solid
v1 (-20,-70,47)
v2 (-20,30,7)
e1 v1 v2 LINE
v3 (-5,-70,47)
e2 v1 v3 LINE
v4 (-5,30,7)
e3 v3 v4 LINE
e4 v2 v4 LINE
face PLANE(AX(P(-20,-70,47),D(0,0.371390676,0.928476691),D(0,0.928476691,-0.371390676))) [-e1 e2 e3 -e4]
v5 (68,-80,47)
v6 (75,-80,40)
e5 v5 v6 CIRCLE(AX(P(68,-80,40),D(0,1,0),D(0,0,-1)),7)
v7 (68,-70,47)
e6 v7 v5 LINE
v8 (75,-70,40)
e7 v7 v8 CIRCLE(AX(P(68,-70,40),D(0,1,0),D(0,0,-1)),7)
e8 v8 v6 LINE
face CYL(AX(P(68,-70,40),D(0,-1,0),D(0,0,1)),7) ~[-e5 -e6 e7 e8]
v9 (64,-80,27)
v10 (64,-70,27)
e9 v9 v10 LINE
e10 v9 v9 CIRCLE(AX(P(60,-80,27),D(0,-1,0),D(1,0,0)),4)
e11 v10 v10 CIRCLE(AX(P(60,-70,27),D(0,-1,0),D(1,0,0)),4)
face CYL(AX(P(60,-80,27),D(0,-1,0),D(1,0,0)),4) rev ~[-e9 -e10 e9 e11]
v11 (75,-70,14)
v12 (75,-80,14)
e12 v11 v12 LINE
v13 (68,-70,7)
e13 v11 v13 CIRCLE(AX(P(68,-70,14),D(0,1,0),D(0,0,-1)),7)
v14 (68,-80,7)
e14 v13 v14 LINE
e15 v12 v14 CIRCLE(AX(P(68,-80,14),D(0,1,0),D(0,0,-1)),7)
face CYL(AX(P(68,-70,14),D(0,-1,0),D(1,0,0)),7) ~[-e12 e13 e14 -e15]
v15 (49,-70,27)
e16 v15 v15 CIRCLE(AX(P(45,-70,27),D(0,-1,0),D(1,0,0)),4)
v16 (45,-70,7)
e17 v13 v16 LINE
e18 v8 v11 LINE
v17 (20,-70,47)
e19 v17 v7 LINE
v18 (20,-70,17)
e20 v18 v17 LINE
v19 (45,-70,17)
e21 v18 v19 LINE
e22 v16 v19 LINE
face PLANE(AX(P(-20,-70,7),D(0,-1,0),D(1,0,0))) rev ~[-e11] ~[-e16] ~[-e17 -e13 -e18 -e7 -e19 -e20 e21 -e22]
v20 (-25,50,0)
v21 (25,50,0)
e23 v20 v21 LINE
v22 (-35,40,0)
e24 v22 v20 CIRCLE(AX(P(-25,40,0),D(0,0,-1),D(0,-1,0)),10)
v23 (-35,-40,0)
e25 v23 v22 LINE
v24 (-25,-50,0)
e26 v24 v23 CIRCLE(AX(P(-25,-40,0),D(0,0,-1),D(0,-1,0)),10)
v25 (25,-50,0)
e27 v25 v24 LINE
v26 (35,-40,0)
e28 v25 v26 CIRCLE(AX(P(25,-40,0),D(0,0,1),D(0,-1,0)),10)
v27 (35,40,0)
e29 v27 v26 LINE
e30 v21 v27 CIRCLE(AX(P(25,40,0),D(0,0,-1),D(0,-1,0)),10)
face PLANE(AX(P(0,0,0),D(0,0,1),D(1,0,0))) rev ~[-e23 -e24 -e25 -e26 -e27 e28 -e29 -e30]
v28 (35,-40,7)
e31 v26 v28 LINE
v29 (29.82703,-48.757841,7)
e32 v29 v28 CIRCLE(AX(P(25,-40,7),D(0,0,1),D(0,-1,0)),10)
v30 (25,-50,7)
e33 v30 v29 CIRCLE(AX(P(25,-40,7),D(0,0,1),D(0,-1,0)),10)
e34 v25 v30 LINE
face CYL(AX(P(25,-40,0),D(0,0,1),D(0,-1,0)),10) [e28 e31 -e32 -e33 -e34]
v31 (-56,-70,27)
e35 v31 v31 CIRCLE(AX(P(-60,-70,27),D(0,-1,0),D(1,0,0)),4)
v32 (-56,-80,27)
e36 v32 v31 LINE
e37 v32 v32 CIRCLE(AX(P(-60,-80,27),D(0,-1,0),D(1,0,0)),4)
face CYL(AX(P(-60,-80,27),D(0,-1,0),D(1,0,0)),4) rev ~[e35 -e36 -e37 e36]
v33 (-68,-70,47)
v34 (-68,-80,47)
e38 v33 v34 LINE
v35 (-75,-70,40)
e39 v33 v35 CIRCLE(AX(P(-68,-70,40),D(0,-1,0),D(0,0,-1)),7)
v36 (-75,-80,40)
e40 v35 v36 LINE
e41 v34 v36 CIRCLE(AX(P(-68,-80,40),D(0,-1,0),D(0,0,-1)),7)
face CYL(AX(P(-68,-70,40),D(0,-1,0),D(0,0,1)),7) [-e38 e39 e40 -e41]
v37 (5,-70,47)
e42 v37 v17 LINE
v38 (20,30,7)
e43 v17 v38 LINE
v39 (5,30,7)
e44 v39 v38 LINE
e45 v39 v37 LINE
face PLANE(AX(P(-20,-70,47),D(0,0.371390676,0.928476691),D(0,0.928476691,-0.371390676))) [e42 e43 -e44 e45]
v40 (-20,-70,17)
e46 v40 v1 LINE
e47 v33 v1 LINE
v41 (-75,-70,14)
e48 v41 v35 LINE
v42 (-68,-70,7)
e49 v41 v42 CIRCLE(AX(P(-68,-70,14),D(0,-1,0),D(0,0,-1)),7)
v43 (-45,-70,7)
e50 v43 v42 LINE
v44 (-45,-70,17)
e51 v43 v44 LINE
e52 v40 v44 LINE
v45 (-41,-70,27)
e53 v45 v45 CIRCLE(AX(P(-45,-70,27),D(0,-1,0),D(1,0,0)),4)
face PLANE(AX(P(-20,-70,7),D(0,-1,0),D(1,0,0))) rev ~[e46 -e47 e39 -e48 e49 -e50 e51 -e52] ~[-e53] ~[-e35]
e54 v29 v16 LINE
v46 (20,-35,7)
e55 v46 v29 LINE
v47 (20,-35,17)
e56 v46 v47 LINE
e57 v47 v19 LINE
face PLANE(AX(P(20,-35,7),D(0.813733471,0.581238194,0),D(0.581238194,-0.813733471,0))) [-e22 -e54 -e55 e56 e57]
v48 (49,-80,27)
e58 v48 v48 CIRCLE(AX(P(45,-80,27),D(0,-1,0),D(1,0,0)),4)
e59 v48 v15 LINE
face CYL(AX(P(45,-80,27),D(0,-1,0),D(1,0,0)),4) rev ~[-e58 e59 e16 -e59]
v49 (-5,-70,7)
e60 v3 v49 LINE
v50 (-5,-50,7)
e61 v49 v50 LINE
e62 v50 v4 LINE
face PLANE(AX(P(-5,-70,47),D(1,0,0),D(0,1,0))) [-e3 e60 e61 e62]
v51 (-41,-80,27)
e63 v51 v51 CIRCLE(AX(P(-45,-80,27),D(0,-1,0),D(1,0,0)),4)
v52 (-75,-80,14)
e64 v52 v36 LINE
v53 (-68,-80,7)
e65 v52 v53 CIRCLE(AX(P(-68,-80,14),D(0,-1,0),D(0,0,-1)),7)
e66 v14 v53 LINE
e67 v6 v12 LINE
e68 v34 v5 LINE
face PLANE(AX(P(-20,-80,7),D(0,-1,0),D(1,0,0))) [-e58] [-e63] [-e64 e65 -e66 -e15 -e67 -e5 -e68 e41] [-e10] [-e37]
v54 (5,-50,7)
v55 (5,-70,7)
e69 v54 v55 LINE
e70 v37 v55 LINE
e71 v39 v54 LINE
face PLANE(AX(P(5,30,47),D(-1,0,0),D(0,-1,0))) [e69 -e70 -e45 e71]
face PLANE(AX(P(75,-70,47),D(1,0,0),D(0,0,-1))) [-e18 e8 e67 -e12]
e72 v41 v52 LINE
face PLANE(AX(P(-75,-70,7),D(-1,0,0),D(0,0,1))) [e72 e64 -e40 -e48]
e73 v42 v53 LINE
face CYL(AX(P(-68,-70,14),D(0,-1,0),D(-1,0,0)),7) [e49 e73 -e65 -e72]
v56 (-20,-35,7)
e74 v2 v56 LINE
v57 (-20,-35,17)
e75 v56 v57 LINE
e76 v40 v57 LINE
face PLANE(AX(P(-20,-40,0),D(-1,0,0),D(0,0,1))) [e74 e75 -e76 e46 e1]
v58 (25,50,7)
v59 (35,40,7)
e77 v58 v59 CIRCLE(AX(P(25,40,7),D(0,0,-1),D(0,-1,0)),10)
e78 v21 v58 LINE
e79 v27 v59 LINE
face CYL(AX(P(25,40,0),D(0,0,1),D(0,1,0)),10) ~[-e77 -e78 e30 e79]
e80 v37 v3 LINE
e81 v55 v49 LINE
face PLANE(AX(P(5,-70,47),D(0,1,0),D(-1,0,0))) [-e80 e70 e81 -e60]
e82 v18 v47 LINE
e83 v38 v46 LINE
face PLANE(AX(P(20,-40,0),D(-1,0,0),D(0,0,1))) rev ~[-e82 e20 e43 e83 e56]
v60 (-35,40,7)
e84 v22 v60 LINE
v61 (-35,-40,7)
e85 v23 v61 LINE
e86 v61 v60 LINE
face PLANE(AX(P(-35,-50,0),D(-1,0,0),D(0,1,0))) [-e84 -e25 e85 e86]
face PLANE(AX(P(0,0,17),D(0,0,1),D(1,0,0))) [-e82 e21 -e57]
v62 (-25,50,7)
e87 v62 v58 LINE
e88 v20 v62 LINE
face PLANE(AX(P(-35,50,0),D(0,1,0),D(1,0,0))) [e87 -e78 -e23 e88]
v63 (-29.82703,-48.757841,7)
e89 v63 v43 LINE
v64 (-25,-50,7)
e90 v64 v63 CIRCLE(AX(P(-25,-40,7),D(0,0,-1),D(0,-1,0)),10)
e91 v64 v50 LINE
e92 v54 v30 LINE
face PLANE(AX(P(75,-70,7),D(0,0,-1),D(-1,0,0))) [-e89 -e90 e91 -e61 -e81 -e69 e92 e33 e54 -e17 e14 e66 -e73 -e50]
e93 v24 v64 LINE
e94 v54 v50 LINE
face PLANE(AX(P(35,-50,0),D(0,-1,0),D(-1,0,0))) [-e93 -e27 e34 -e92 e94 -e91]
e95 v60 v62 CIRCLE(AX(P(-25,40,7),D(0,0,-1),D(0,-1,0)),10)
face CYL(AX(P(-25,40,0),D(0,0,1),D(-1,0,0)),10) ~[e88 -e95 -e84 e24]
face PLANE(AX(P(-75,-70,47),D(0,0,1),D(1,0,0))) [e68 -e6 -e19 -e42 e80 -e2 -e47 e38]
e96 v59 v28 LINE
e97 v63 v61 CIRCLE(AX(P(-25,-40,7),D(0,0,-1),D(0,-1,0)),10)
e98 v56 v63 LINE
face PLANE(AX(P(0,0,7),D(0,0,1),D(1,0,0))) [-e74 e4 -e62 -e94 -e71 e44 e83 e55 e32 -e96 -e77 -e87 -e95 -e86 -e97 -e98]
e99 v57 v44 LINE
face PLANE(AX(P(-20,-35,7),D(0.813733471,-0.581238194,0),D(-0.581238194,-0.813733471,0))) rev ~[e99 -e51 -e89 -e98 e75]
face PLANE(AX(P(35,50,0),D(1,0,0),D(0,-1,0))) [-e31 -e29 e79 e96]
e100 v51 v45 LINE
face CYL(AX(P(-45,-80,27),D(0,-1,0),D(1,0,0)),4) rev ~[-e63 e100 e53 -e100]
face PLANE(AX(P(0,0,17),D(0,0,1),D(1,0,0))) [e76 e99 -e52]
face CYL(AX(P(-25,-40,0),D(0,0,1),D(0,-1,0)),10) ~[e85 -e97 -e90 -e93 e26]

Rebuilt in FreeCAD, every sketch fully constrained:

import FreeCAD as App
import Part
import Sketcher

V = App.Vector


def edges_at(feature, points):
    """Names of the edges that pass closest to the given points."""
    edges = feature.Shape.Edges
    near = lambda p: min(range(len(edges)), key=lambda i: edges[i].distToShape(Part.Vertex(*p))[0])
    return sorted({f"Edge{near(p) + 1}" for p in points})

doc = App.newDocument("Part")
body = doc.addObject("PartDesign::Body", "Body")

# Sketch on XY plane
sketch1 = body.newObject("Sketcher::SketchObject", "Sketch")
sketch1.AttachmentSupport = (doc.getObject("XY_Plane"), [""])
sketch1.MapMode = "FlatFace"
sketch1.addGeometry([
    Part.LineSegment(V(-35, -50, 0), V(35, -50, 0)),
    Part.LineSegment(V(35, -50, 0), V(35, 50, 0)),
    Part.LineSegment(V(35, 50, 0), V(-35, 50, 0)),
    Part.LineSegment(V(-35, 50, 0), V(-35, -50, 0)),
], False)
sketch1.addConstraint([
    Sketcher.Constraint("Coincident", 0, 2, 1, 1),
    Sketcher.Constraint("Coincident", 1, 2, 2, 1),
    Sketcher.Constraint("Coincident", 2, 2, 3, 1),
    Sketcher.Constraint("Coincident", 3, 2, 0, 1),
    Sketcher.Constraint("Horizontal", 0),
    Sketcher.Constraint("Vertical", 1),
    Sketcher.Constraint("Horizontal", 2),
    Sketcher.Constraint("Vertical", 3),
    Sketcher.Constraint("Symmetric", 0, 2, 2, 2, -1, 1),
    Sketcher.Constraint("DistanceX", 0, 1, 0, 2, 70.0),
    Sketcher.Constraint("DistanceY", 1, 1, 1, 2, 100.0),
])
pad1 = body.newObject("PartDesign::Pad", "Pad")
pad1.Profile = sketch1
pad1.Length = 7
doc.recompute()

fillet = body.newObject("PartDesign::Fillet", "Fillet")
fillet.Base = (pad1, edges_at(pad1, [
    (35, 50, 3.5),
    (-35, 50, 3.5),
    (-35, -50, 3.5),
    (35, -50, 3.5),
]))
fillet.Radius = 10

# Sketch on YZ plane
sketch2 = body.newObject("Sketcher::SketchObject", "Sketch001")
sketch2.AttachmentSupport = (doc.getObject("YZ_Plane"), [""])
sketch2.MapMode = "FlatFace"
sketch2.AttachmentOffset = App.Placement(V(0, 0, -20), App.Rotation())
sketch2.addGeometry([
    Part.LineSegment(V(-70, 47, 0), V(30, 7, 0)),
    Part.LineSegment(V(30, 7, 0), V(-70, 7, 0)),
    Part.LineSegment(V(-70, 7, 0), V(-70, 47, 0)),
], False)
sketch2.addConstraint([
    Sketcher.Constraint("Coincident", 0, 2, 1, 1),
    Sketcher.Constraint("Coincident", 1, 2, 2, 1),
    Sketcher.Constraint("Coincident", 2, 2, 0, 1),
    Sketcher.Constraint("Horizontal", 1),
    Sketcher.Constraint("Vertical", 2),
    Sketcher.Constraint("DistanceX", 1, 2, 1, 1, 100.0),
    Sketcher.Constraint("DistanceY", 2, 1, 2, 2, 40.0),
    Sketcher.Constraint("DistanceX", -1, 1, 0, 2, 30.0),
    Sketcher.Constraint("DistanceY", -1, 1, 0, 2, 7.0),
])
pad2 = body.newObject("PartDesign::Pad", "Pad001")
pad2.Profile = sketch2
pad2.Length = 40

# Sketch on XZ plane
sketch3 = body.newObject("Sketcher::SketchObject", "Sketch002")
sketch3.AttachmentSupport = (doc.getObject("XZ_Plane"), [""])
sketch3.MapMode = "FlatFace"
sketch3.AttachmentOffset = App.Placement(V(0, 0, 70), App.Rotation())
sketch3.addGeometry([
    Part.LineSegment(V(75, 47, 0), V(-75, 47, 0)),
    Part.LineSegment(V(-75, 47, 0), V(-75, 7, 0)),
    Part.LineSegment(V(-75, 7, 0), V(75, 7, 0)),
    Part.LineSegment(V(75, 7, 0), V(75, 47, 0)),
], False)
sketch3.addConstraint([
    Sketcher.Constraint("Coincident", 0, 2, 1, 1),
    Sketcher.Constraint("Coincident", 1, 2, 2, 1),
    Sketcher.Constraint("Coincident", 2, 2, 3, 1),
    Sketcher.Constraint("Coincident", 3, 2, 0, 1),
    Sketcher.Constraint("Horizontal", 0),
    Sketcher.Constraint("Vertical", 1),
    Sketcher.Constraint("Horizontal", 2),
    Sketcher.Constraint("Vertical", 3),
    Sketcher.Constraint("DistanceX", 0, 2, 0, 1, 150.0),
    Sketcher.Constraint("DistanceY", 1, 2, 1, 1, 40.0),
    Sketcher.Constraint("DistanceX", 0, 2, -1, 1, 75.0),
    Sketcher.Constraint("DistanceY", -1, 1, 0, 2, 47.0),
])
pad3 = body.newObject("PartDesign::Pad", "Pad002")
pad3.Profile = sketch3
pad3.Length = 10
doc.recompute()

fillet2 = body.newObject("PartDesign::Fillet", "Fillet001")
fillet2.Base = (pad3, edges_at(pad3, [
    (-75, -75, 47),
    (75, -75, 47),
    (75, -75, 7),
    (-75, -75, 7),
]))
fillet2.Radius = 7

# Sketch on XZ plane
sketch4 = body.newObject("Sketcher::SketchObject", "Sketch003")
sketch4.AttachmentSupport = (doc.getObject("XZ_Plane"), [""])
sketch4.MapMode = "FlatFace"
sketch4.AttachmentOffset = App.Placement(V(0, 0, 80), App.Rotation())
sketch4.addGeometry([
    Part.Circle(V(60, 27, 0), V(0, 0, 1), 4),
    Part.Circle(V(-60, 27, 0), V(0, 0, 1), 4),
    Part.Circle(V(45, 27, 0), V(0, 0, 1), 4),
    Part.Circle(V(-45, 27, 0), V(0, 0, 1), 4),
], False)
sketch4.addConstraint([
    Sketcher.Constraint("Equal", 0, 1),
    Sketcher.Constraint("Equal", 1, 2),
    Sketcher.Constraint("Equal", 2, 3),
    Sketcher.Constraint("Symmetric", 0, 3, 1, 3, -2),
    Sketcher.Constraint("Symmetric", 2, 3, 3, 3, -2),
    Sketcher.Constraint("Horizontal", 1, 3, 2, 3),
    Sketcher.Constraint("Diameter", 0, 8.0),
    Sketcher.Constraint("DistanceX", 2, 3, 0, 3, 15.0),
    Sketcher.Constraint("DistanceX", -1, 1, 0, 3, 60.0),
    Sketcher.Constraint("DistanceY", -1, 1, 0, 3, 27.0),
])
pocket1 = body.newObject("PartDesign::Pocket", "Pocket")
pocket1.Profile = sketch4
pocket1.Length = 20

# Sketch on XY plane
sketch5 = body.newObject("Sketcher::SketchObject", "Sketch004")
sketch5.AttachmentSupport = (doc.getObject("XY_Plane"), [""])
sketch5.MapMode = "FlatFace"
sketch5.AttachmentOffset = App.Placement(V(0, 0, 47), App.Rotation())
sketch5.addGeometry([
    Part.LineSegment(V(-5, -70, 0), V(5, -70, 0)),
    Part.LineSegment(V(5, -70, 0), V(5, 30, 0)),
    Part.LineSegment(V(5, 30, 0), V(-5, 30, 0)),
    Part.LineSegment(V(-5, 30, 0), V(-5, -70, 0)),
], False)
sketch5.addConstraint([
    Sketcher.Constraint("Coincident", 0, 2, 1, 1),
    Sketcher.Constraint("Coincident", 1, 2, 2, 1),
    Sketcher.Constraint("Coincident", 2, 2, 3, 1),
    Sketcher.Constraint("Coincident", 3, 2, 0, 1),
    Sketcher.Constraint("Horizontal", 0),
    Sketcher.Constraint("Vertical", 1),
    Sketcher.Constraint("Horizontal", 2),
    Sketcher.Constraint("Vertical", 3),
    Sketcher.Constraint("DistanceX", 0, 1, 0, 2, 10.0),
    Sketcher.Constraint("DistanceY", 1, 1, 1, 2, 100.0),
    Sketcher.Constraint("DistanceX", -1, 1, 0, 2, 5.0),
    Sketcher.Constraint("DistanceY", 0, 2, -1, 1, 70.0),
])
pocket2 = body.newObject("PartDesign::Pocket", "Pocket001")
pocket2.Profile = sketch5
pocket2.Length = 40

# Sketch on XY plane
sketch6 = body.newObject("Sketcher::SketchObject", "Sketch005")
sketch6.AttachmentSupport = (doc.getObject("XY_Plane"), [""])
sketch6.MapMode = "FlatFace"
sketch6.AttachmentOffset = App.Placement(V(0, 0, 7), App.Rotation())
sketch6.addGeometry([
    Part.LineSegment(V(-45, -70, 0), V(-20, -70, 0)),  # 0
    Part.LineSegment(V(-20, -70, 0), V(-20, -35, 0)),  # 1
    Part.LineSegment(V(-20, -35, 0), V(-45, -70, 0)),  # 2
    Part.LineSegment(V(20, -35, 0), V(20, -70, 0)),  # 3
    Part.LineSegment(V(20, -70, 0), V(45, -70, 0)),  # 4
    Part.LineSegment(V(45, -70, 0), V(20, -35, 0)),  # 5
], False)
sketch6.addConstraint([
    Sketcher.Constraint("Coincident", 0, 2, 1, 1),
    Sketcher.Constraint("Coincident", 1, 2, 2, 1),
    Sketcher.Constraint("Coincident", 2, 2, 0, 1),
    Sketcher.Constraint("Coincident", 3, 2, 4, 1),
    Sketcher.Constraint("Coincident", 4, 2, 5, 1),
    Sketcher.Constraint("Coincident", 5, 2, 3, 1),
    Sketcher.Constraint("Horizontal", 0),
    Sketcher.Constraint("Vertical", 1),
    Sketcher.Constraint("Vertical", 3),
    Sketcher.Constraint("Horizontal", 4),
    Sketcher.Constraint("Symmetric", 0, 2, 3, 2, -2),
    Sketcher.Constraint("Horizontal", 1, 2, 5, 2),
    Sketcher.Constraint("Equal", 0, 4),
    Sketcher.Constraint("DistanceX", 0, 1, 0, 2, 25.0),
    Sketcher.Constraint("DistanceY", 1, 1, 1, 2, 35.0),
    Sketcher.Constraint("DistanceY", 0, 2, -1, 1, 70.0),
    Sketcher.Constraint("DistanceX", 0, 2, -1, 1, 20.0),
])
pad4 = body.newObject("PartDesign::Pad", "Pad003")
pad4.Profile = sketch6
pad4.Length = 10

doc.recompute()
